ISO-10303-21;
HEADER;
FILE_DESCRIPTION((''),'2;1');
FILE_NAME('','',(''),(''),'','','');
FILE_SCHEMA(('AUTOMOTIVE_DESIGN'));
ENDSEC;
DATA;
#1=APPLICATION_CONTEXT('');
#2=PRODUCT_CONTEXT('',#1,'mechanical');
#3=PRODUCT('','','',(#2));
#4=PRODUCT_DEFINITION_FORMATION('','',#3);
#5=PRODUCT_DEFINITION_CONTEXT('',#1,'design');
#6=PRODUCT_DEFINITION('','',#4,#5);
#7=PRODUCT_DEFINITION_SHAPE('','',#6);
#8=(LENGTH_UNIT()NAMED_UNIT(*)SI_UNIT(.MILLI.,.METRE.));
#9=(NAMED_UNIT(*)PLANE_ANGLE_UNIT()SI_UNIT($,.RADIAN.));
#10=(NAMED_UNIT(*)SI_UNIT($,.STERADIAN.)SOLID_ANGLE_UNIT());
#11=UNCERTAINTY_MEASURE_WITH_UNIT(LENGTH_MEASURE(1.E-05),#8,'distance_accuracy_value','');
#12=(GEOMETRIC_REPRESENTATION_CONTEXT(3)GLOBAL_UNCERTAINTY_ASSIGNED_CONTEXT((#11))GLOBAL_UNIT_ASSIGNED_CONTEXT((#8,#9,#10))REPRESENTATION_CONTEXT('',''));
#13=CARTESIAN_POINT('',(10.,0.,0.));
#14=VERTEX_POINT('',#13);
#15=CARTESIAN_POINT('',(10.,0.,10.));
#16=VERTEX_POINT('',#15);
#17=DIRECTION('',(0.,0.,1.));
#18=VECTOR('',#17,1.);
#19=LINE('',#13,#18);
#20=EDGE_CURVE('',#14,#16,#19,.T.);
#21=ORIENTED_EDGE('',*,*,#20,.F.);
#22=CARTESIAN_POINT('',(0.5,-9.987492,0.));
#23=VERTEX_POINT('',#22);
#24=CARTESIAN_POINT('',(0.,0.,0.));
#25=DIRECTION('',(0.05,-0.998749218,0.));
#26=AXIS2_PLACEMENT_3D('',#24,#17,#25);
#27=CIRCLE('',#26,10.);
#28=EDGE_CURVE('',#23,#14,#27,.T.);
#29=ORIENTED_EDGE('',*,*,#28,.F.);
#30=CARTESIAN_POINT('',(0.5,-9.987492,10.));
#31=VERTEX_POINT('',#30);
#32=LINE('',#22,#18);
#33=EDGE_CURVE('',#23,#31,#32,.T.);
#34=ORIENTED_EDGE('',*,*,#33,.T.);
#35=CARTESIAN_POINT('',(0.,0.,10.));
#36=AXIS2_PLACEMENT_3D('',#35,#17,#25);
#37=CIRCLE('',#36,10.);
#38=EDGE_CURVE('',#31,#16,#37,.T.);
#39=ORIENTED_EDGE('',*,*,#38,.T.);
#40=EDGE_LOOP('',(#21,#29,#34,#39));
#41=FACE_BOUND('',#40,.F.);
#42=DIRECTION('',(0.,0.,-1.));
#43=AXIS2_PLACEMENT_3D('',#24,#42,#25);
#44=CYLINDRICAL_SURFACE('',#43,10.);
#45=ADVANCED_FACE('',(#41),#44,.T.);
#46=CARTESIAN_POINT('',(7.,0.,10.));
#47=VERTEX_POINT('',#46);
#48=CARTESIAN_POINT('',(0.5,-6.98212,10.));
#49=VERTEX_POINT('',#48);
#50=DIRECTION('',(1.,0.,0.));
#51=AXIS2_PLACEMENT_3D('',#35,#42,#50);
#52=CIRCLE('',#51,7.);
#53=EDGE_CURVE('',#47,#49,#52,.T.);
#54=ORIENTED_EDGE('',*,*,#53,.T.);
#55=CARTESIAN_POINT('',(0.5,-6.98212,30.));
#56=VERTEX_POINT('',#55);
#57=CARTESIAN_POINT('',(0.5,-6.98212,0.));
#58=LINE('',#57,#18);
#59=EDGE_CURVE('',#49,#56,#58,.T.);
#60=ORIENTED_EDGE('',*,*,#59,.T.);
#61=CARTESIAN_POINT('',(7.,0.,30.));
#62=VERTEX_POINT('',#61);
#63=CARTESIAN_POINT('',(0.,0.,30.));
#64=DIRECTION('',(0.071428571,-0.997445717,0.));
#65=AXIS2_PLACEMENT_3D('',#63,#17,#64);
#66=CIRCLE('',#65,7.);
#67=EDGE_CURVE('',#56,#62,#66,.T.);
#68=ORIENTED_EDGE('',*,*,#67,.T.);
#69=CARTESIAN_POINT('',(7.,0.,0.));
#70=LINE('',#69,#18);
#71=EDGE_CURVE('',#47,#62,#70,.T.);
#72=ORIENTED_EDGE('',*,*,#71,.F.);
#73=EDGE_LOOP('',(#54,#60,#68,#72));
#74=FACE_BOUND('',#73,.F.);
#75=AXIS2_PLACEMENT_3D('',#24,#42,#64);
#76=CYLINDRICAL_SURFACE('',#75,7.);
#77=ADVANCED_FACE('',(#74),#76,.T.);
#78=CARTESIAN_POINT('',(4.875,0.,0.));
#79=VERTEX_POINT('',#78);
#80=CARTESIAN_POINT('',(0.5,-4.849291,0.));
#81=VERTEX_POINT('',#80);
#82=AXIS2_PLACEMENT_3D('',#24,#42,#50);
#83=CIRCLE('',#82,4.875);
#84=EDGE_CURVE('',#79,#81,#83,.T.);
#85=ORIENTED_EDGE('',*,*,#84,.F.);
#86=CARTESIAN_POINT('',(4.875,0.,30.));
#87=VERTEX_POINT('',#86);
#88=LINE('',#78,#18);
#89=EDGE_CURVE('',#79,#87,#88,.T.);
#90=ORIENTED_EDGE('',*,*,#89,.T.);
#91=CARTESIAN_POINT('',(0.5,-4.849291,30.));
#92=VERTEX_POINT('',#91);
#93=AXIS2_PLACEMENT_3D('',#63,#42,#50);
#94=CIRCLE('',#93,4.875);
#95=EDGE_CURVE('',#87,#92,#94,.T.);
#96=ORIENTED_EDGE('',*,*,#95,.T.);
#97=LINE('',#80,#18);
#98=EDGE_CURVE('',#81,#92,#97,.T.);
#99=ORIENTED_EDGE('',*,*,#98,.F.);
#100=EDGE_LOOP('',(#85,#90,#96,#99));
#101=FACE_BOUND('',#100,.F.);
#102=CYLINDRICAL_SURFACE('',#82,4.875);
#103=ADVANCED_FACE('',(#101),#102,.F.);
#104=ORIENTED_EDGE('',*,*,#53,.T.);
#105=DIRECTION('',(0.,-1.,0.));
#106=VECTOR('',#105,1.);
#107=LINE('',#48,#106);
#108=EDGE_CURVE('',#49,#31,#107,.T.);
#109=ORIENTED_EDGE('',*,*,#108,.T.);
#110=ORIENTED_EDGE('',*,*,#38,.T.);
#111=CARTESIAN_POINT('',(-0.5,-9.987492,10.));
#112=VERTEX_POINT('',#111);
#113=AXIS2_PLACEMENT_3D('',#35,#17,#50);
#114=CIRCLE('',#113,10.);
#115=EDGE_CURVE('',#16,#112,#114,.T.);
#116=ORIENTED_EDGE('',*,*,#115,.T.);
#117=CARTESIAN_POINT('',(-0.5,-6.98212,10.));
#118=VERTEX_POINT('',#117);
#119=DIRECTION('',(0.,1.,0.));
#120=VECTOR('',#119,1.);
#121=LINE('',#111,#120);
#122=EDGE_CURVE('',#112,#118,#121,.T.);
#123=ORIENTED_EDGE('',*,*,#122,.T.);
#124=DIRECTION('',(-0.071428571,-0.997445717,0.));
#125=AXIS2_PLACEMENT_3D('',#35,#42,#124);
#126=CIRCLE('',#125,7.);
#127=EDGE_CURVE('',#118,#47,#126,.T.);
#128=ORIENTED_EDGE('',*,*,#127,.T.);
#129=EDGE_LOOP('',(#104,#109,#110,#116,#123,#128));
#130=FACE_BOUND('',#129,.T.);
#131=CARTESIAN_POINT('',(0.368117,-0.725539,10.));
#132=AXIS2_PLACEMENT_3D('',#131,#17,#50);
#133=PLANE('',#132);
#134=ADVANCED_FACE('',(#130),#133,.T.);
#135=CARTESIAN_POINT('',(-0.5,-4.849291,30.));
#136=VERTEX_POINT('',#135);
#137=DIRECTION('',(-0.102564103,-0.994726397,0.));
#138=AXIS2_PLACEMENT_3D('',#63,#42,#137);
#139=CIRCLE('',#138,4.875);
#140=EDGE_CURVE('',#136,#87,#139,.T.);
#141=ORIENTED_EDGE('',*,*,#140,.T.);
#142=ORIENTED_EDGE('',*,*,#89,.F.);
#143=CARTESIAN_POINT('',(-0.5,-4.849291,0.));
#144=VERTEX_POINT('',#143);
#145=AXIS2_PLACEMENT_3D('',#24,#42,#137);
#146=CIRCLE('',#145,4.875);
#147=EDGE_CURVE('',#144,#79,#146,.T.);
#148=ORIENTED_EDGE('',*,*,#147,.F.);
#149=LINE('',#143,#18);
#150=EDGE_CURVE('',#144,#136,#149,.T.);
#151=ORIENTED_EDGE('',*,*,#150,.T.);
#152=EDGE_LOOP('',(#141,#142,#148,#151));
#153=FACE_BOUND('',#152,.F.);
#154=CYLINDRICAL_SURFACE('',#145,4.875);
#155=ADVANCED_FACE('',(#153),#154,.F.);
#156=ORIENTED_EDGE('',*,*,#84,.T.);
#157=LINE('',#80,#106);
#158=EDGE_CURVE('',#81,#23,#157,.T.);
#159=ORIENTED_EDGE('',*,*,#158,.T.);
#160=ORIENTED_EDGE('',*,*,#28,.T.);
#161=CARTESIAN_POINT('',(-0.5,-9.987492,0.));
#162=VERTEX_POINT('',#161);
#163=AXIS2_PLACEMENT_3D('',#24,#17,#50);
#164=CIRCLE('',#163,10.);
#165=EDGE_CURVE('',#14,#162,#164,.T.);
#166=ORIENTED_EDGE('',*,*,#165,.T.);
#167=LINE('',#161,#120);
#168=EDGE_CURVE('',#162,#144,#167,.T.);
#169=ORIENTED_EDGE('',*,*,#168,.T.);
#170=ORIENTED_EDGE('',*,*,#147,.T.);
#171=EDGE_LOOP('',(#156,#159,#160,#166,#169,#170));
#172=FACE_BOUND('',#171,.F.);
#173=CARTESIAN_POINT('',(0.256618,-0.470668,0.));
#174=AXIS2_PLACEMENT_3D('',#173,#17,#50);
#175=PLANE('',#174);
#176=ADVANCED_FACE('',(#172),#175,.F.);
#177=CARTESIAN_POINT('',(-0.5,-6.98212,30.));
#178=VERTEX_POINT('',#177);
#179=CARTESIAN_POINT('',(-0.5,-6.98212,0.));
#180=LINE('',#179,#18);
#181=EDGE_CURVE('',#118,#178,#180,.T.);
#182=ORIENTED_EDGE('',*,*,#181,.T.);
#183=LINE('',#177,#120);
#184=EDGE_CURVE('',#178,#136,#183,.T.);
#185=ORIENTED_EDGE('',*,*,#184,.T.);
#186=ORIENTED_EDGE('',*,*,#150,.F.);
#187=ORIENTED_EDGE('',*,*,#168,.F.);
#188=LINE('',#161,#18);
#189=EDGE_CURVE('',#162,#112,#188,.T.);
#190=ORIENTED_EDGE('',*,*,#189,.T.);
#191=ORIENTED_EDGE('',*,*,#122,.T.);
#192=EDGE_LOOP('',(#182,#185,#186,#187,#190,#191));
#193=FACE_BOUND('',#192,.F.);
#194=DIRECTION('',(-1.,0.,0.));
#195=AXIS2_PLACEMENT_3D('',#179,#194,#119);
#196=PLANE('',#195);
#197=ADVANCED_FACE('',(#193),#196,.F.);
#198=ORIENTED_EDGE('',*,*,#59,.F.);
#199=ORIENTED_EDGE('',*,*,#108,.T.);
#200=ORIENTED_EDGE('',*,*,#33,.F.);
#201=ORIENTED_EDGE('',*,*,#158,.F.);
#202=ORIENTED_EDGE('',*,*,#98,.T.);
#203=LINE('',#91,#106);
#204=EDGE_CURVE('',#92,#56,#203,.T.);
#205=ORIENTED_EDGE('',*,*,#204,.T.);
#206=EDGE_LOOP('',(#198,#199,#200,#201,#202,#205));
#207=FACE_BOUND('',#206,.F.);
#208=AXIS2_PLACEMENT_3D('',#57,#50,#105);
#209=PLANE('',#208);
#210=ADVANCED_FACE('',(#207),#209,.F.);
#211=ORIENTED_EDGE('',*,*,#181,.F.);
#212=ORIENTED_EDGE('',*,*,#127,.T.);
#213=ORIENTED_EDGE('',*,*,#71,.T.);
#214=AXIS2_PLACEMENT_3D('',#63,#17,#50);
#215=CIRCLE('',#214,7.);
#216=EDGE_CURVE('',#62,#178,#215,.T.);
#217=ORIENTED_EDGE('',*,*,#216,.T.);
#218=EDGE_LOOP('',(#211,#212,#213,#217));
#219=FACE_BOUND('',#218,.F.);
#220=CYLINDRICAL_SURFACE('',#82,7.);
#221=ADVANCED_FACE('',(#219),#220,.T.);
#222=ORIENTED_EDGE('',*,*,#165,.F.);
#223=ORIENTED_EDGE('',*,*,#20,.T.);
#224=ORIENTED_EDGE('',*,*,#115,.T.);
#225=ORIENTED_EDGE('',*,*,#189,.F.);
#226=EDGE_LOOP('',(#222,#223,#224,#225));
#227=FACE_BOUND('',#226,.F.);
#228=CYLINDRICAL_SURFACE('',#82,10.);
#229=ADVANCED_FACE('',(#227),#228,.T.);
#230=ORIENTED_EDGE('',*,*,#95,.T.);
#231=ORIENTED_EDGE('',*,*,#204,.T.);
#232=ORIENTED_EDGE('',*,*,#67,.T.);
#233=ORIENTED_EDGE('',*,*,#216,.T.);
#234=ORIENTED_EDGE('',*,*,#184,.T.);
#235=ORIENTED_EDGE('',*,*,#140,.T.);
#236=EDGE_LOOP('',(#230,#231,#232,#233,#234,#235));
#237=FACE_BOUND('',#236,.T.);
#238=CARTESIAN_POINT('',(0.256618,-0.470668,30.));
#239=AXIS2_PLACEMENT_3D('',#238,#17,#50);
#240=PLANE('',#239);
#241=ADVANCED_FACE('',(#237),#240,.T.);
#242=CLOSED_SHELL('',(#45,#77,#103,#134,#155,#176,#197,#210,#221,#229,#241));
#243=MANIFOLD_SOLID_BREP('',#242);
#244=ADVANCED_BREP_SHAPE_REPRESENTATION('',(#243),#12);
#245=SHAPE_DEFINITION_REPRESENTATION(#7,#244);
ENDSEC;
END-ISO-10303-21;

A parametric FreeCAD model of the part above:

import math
import FreeCAD as App
import Part
import Sketcher

V = App.Vector
Q = App.Units.Quantity

doc = App.newDocument("Part")
body = doc.addObject("PartDesign::Body", "Body")

sketch1 = body.newObject("Sketcher::SketchObject", "Sketch")
sketch1.AttachmentSupport = (doc.getObject("XY_Plane"), [""])
sketch1.MapMode = "FlatFace"
sketch1.addGeometry([
    Part.ArcOfCircle(Part.Circle(V(0, 0, 0), V(0, 0, 1), 10), math.radians(-87), math.radians(0)),
    Part.ArcOfCircle(Part.Circle(V(0, 0, 0), V(0, 0, 1), 10), math.radians(0), math.radians(267)),
    Part.LineSegment(V(-0.5, -10, 0), V(-0.5, -7, 0)),
    Part.ArcOfCircle(Part.Circle(V(0, 0, 0), V(0, 0, 1), 7), math.radians(0), math.radians(266)),
    Part.ArcOfCircle(Part.Circle(V(0, 0, 0), V(0, 0, 1), 7), math.radians(-86), math.radians(0)),
    Part.LineSegment(V(0.5, -7, 0), V(0.5, -10, 0)),
], False)
sketch1.addConstraint([
    Sketcher.Constraint("Tangent", 0, 2, 1, 1),
    Sketcher.Constraint("Coincident", 1, 2, 2, 1),
    Sketcher.Constraint("Coincident", 2, 2, 3, 2),
    Sketcher.Constraint("Tangent", 3, 1, 4, 2),
    Sketcher.Constraint("Coincident", 4, 1, 5, 1),
    Sketcher.Constraint("Coincident", 5, 2, 0, 1),
    Sketcher.Constraint("Vertical", 2),
    Sketcher.Constraint("Vertical", 5),
    Sketcher.Constraint("Coincident", 0, 3, -1, 1),
    Sketcher.Constraint("Coincident", 3, 3, -1, 1),
    Sketcher.Constraint("Equal", 0, 1),
    Sketcher.Constraint("Equal", 3, 4),
    Sketcher.Constraint("PointOnObject", 0, 2, -1),
    Sketcher.Constraint("PointOnObject", 3, 1, -1),
    Sketcher.Constraint("Horizontal", 2, 2, 4, 1),
    Sketcher.Constraint("Radius", 0, Q("10 mm")),
    Sketcher.Constraint("Radius", 3, Q("7 mm")),
    Sketcher.Constraint("DistanceX", 2, 2, 4, 1, Q("1 mm")),
])
pad1 = body.newObject("PartDesign::Pad", "Pad")
pad1.Profile = sketch1
pad1.Length = 10

sketch2 = body.newObject("Sketcher::SketchObject", "Sketch001")
sketch2.AttachmentSupport = (doc.getObject("XY_Plane"), [""])
sketch2.MapMode = "FlatFace"
sketch2.addGeometry([
    Part.ArcOfCircle(Part.Circle(V(0, 0, 0), V(0, 0, 1), 7), math.radians(0), math.radians(266)),
    Part.LineSegment(V(-0.5, -7, 0), V(-0.5, -4.8, 0)),
    Part.ArcOfCircle(Part.Circle(V(0, 0, 0), V(0, 0, 1), 4.9), math.radians(0), math.radians(264)),
    Part.ArcOfCircle(Part.Circle(V(0, 0, 0), V(0, 0, 1), 4.9), math.radians(-84), math.radians(0)),
    Part.LineSegment(V(0.5, -4.8, 0), V(0.5, -7, 0)),
    Part.ArcOfCircle(Part.Circle(V(0, 0, 0), V(0, 0, 1), 7), math.radians(-86), math.radians(0)),
], False)
sketch2.addConstraint([
    Sketcher.Constraint("Coincident", 0, 2, 1, 1),
    Sketcher.Constraint("Coincident", 1, 2, 2, 2),
    Sketcher.Constraint("Tangent", 2, 1, 3, 2),
    Sketcher.Constraint("Coincident", 3, 1, 4, 1),
    Sketcher.Constraint("Coincident", 4, 2, 5, 1),
    Sketcher.Constraint("Tangent", 5, 2, 0, 1),
    Sketcher.Constraint("Vertical", 1),
    Sketcher.Constraint("Vertical", 4),
    Sketcher.Constraint("Coincident", 0, 3, -1, 1),
    Sketcher.Constraint("Coincident", 2, 3, -1, 1),
    Sketcher.Constraint("Equal", 2, 3),
    Sketcher.Constraint("Equal", 0, 5),
    Sketcher.Constraint("PointOnObject", 2, 1, -1),
    Sketcher.Constraint("PointOnObject", 5, 2, -1),
    Sketcher.Constraint("Horizontal", 1, 2, 3, 1),
    Sketcher.Constraint("Radius", 0, Q("7 mm")),
    Sketcher.Constraint("Radius", 2, Q("4.875 mm")),
    Sketcher.Constraint("DistanceX", 1, 2, 3, 1, Q("1 mm")),
])
pad2 = body.newObject("PartDesign::Pad", "Pad001")
pad2.Profile = sketch2
pad2.Length = 30

doc.recompute()
